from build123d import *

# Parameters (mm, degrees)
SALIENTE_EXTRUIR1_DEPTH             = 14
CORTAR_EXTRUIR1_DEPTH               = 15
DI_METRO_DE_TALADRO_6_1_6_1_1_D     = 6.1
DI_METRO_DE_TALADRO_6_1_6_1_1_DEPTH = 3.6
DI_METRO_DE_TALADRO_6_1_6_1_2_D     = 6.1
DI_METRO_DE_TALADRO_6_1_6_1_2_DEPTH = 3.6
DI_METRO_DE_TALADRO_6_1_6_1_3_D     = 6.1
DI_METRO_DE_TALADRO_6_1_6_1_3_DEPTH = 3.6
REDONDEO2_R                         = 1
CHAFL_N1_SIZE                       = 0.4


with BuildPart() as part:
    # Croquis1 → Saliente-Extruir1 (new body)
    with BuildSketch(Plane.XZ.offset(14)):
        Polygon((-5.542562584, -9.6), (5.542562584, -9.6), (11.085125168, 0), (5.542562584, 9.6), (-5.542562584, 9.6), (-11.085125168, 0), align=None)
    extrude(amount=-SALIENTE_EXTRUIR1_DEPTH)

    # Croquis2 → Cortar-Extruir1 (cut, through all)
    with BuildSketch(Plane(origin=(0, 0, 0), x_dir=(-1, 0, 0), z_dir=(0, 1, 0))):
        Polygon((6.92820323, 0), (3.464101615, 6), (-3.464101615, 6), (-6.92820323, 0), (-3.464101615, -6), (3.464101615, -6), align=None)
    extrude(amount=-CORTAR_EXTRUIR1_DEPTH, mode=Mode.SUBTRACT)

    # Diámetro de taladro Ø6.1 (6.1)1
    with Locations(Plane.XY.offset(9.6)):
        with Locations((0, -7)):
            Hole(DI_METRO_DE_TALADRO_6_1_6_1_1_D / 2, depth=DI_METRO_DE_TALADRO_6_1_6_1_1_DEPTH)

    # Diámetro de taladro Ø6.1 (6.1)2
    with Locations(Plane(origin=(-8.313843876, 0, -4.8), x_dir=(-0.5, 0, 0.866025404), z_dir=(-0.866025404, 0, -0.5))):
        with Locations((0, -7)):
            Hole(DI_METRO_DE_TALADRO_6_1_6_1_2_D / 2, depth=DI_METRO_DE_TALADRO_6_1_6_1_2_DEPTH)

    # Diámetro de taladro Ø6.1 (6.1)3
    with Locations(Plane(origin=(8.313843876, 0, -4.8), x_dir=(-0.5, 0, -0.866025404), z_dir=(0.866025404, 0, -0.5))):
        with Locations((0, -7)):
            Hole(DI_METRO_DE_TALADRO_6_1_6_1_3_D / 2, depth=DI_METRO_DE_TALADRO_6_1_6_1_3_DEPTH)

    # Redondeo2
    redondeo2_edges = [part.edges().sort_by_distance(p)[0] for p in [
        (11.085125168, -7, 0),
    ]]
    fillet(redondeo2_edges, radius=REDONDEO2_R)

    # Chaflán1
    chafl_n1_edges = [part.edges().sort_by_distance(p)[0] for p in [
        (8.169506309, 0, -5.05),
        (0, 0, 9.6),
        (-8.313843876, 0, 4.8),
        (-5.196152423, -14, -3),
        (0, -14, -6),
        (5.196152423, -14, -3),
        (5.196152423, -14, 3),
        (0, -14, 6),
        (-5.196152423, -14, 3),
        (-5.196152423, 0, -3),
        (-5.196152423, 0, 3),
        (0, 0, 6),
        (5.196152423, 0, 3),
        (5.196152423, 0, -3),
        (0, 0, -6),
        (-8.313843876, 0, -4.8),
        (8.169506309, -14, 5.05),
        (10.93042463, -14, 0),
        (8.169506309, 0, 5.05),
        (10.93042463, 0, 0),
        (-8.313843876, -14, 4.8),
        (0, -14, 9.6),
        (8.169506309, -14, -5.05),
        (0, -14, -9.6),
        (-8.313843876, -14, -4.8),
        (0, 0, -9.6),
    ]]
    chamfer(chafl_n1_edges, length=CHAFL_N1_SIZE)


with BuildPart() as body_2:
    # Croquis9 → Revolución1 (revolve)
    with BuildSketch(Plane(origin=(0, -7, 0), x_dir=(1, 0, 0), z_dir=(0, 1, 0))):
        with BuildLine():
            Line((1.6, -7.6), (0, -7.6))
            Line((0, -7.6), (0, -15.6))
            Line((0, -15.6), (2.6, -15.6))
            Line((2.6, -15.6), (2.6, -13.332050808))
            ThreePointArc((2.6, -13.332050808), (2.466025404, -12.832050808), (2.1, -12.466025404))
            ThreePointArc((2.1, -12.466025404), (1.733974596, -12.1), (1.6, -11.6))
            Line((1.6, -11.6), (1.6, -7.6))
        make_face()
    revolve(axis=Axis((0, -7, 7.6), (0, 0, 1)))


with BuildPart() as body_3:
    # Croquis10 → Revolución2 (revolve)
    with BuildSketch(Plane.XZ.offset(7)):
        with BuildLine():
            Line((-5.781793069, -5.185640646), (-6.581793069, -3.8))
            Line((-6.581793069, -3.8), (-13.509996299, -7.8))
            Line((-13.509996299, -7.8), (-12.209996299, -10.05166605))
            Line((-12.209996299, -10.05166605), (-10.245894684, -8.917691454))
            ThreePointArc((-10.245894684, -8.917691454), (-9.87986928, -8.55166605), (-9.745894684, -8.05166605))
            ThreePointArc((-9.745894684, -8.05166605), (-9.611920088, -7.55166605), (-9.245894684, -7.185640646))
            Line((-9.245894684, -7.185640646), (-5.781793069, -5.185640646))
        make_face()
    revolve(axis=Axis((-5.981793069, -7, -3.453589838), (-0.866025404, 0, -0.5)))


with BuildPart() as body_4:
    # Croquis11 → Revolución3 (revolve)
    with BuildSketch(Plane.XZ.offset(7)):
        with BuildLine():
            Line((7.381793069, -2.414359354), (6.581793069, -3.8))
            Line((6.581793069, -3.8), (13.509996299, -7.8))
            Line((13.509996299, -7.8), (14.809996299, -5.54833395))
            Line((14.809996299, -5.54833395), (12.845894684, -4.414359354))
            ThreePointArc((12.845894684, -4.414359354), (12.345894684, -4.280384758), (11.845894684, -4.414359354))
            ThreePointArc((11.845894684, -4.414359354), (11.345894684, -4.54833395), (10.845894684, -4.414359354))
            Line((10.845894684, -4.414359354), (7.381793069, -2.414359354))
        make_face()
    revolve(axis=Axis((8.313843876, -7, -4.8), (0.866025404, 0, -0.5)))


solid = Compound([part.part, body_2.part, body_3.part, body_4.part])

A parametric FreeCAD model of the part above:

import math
import FreeCAD as App
import Part
import Sketcher
Q = App.Units.Quantity


def edges_at(feature, points):
    """Names of the edges that pass closest to the given points."""
    edges = feature.Shape.Edges
    near = lambda p: min(range(len(edges)), key=lambda i: edges[i].distToShape(Part.Vertex(*p))[0])
    return sorted({f"Edge{near(p) + 1}" for p in points})

doc = App.newDocument("Part")
body = doc.addObject("PartDesign::Body", "Body")

# Sketch on XZ plane
sketch1 = body.newObject("Sketcher::SketchObject", "Sketch")
sketch1.AttachmentSupport = (doc.getObject("XZ_Plane"), [""])
sketch1.MapMode = "FlatFace"
sketch1.AttachmentOffset = App.Placement(App.Vector(0, 0, 14), App.Rotation())
sketch1.addGeometry(Part.LineSegment(App.Vector(-6, -10, 0), App.Vector(6, -10, 0)), False)
sketch1.addGeometry(Part.LineSegment(App.Vector(6, -10, 0), App.Vector(11, 0, 0)), False)
sketch1.addGeometry(Part.LineSegment(App.Vector(11, 0, 0), App.Vector(6, 10, 0)), False)
sketch1.addGeometry(Part.LineSegment(App.Vector(6, 10, 0), App.Vector(-6, 10, 0)), False)
sketch1.addGeometry(Part.LineSegment(App.Vector(-6, 10, 0), App.Vector(-11, 0, 0)), False)
sketch1.addGeometry(Part.LineSegment(App.Vector(-11, 0, 0), App.Vector(-6, -10, 0)), False)
sketch1.addConstraint(Sketcher.Constraint("Coincident", 0, 2, 1, 1))
sketch1.addConstraint(Sketcher.Constraint("Coincident", 1, 2, 2, 1))
sketch1.addConstraint(Sketcher.Constraint("Coincident", 2, 2, 3, 1))
sketch1.addConstraint(Sketcher.Constraint("Coincident", 3, 2, 4, 1))
sketch1.addConstraint(Sketcher.Constraint("Coincident", 4, 2, 5, 1))
sketch1.addConstraint(Sketcher.Constraint("Coincident", 5, 2, 0, 1))
sketch1.addConstraint(Sketcher.Constraint("Horizontal", 0))
sketch1.addConstraint(Sketcher.Constraint("Horizontal", 3))
sketch1.addConstraint(Sketcher.Constraint("Symmetric", 0, 2, 3, 2, -1, 1))
sketch1.addConstraint(Sketcher.Constraint("Symmetric", 1, 2, 4, 2, -1, 1))
sketch1.addConstraint(Sketcher.Constraint("PointOnObject", 1, 2, -1))
sketch1.addConstraint(Sketcher.Constraint("Parallel", 2, 5))
sketch1.addConstraint(Sketcher.Constraint("Vertical", 0, 2, 2, 2))
sketch1.addConstraint(Sketcher.Constraint("Angle", 1, Q("60 deg")))
sketch1.addConstraint(Sketcher.Constraint("DistanceY", 0, 2, -1, 1, 9.6))
sketch1.addConstraint(Sketcher.Constraint("DistanceX", 0, 1, 0, 2, 11.085125))
pad1 = body.newObject("PartDesign::Pad", "Pad")
pad1.Profile = sketch1
pad1.Length = 14
pad1.Reversed = True

# Sketch on XZ plane
sketch2 = body.newObject("Sketcher::SketchObject", "Sketch001")
sketch2.AttachmentSupport = (doc.getObject("XZ_Plane"), [""])
sketch2.MapMode = "FlatFace"
sketch2.addGeometry(Part.LineSegment(App.Vector(-7, 0, 0), App.Vector(-3, 6, 0)), False)
sketch2.addGeometry(Part.LineSegment(App.Vector(-3, 6, 0), App.Vector(3, 6, 0)), False)
sketch2.addGeometry(Part.LineSegment(App.Vector(3, 6, 0), App.Vector(7, 0, 0)), False)
sketch2.addGeometry(Part.LineSegment(App.Vector(7, 0, 0), App.Vector(3, -6, 0)), False)
sketch2.addGeometry(Part.LineSegment(App.Vector(3, -6, 0), App.Vector(-3, -6, 0)), False)
sketch2.addGeometry(Part.LineSegment(App.Vector(-3, -6, 0), App.Vector(-7, 0, 0)), False)
sketch2.addConstraint(Sketcher.Constraint("Coincident", 0, 2, 1, 1))
sketch2.addConstraint(Sketcher.Constraint("Coincident", 1, 2, 2, 1))
sketch2.addConstraint(Sketcher.Constraint("Coincident", 2, 2, 3, 1))
sketch2.addConstraint(Sketcher.Constraint("Coincident", 3, 2, 4, 1))
sketch2.addConstraint(Sketcher.Constraint("Coincident", 4, 2, 5, 1))
sketch2.addConstraint(Sketcher.Constraint("Coincident", 5, 2, 0, 1))
sketch2.addConstraint(Sketcher.Constraint("Horizontal", 1))
sketch2.addConstraint(Sketcher.Constraint("Horizontal", 4))
sketch2.addConstraint(Sketcher.Constraint("Symmetric", 0, 2, 3, 2, -1, 1))
sketch2.addConstraint(Sketcher.Constraint("Symmetric", 2, 2, 5, 2, -1, 1))
sketch2.addConstraint(Sketcher.Constraint("PointOnObject", 2, 2, -1))
sketch2.addConstraint(Sketcher.Constraint("Parallel", 2, 5))
sketch2.addConstraint(Sketcher.Constraint("Vertical", 1, 2, 3, 2))
sketch2.addConstraint(Sketcher.Constraint("Angle", 0, Q("60 deg")))
sketch2.addConstraint(Sketcher.Constraint("DistanceY", -1, 1, 0, 2, 6.0))
sketch2.addConstraint(Sketcher.Constraint("DistanceX", 0, 2, -1, 1, 3.464102))
pocket1 = body.newObject("PartDesign::Pocket", "Pocket")
pocket1.Profile = sketch2
pocket1.Type = "ThroughAll"
pocket1.Reversed = True

# Sketch on XY plane
sketch3 = body.newObject("Sketcher::SketchObject", "Sketch002")
sketch3.AttachmentSupport = (doc.getObject("XY_Plane"), [""])
sketch3.MapMode = "FlatFace"
sketch3.AttachmentOffset = App.Placement(App.Vector(0, 0, 9.6), App.Rotation())
sketch3.addGeometry(Part.Circle(App.Vector(0, -7, 0), App.Vector(0, 0, 1), 3), False)
sketch3.addConstraint(Sketcher.Constraint("PointOnObject", 0, 3, -2))
sketch3.addConstraint(Sketcher.Constraint("Diameter", 0, 6.1))
sketch3.addConstraint(Sketcher.Constraint("DistanceY", 0, 3, -1, 1, 7.0))
doc.recompute()
hole = body.newObject("PartDesign::Hole", "Hole")
hole.Profile = sketch3
hole.ThreadType = "None"
hole.Diameter = 6.1
hole.DepthType = "Dimension"
hole.Depth = 3.6
hole.DrillPoint = "Flat"

# Sketch on an angled plane
sketch4 = body.newObject("Sketcher::SketchObject", "Sketch003")
sketch4.Placement = App.Placement(App.Vector(-8.313844, 0, -4.8), App.Rotation(App.Vector(-0.5, 0, 0.866025404), App.Vector(0, 1, 0), App.Vector(-0.866025404, 0, -0.5), "ZXY"))
sketch4.addGeometry(Part.Circle(App.Vector(0, -7, 0), App.Vector(0, 0, 1), 3), False)
sketch4.addConstraint(Sketcher.Constraint("PointOnObject", 0, 3, -2))
sketch4.addConstraint(Sketcher.Constraint("Diameter", 0, 6.1))
sketch4.addConstraint(Sketcher.Constraint("DistanceY", 0, 3, -1, 1, 7.0))
doc.recompute()
hole2 = body.newObject("PartDesign::Hole", "Hole001")
hole2.Profile = sketch4
hole2.ThreadType = "None"
hole2.Diameter = 6.1
hole2.DepthType = "Dimension"
hole2.Depth = 3.6
hole2.DrillPoint = "Flat"

# Sketch on an angled plane
sketch5 = body.newObject("Sketcher::SketchObject", "Sketch004")
sketch5.Placement = App.Placement(App.Vector(8.313844, 0, -4.8), App.Rotation(App.Vector(-0.5, 0, -0.866025404), App.Vector(0, 1, 0), App.Vector(0.866025404, 0, -0.5), "ZXY"))
sketch5.addGeometry(Part.Circle(App.Vector(0, -7, 0), App.Vector(0, 0, 1), 3), False)
sketch5.addConstraint(Sketcher.Constraint("PointOnObject", 0, 3, -2))
sketch5.addConstraint(Sketcher.Constraint("Diameter", 0, 6.1))
sketch5.addConstraint(Sketcher.Constraint("DistanceY", 0, 3, -1, 1, 7.0))
doc.recompute()
hole3 = body.newObject("PartDesign::Hole", "Hole002")
hole3.Profile = sketch5
hole3.ThreadType = "None"
hole3.Diameter = 6.1
hole3.DepthType = "Dimension"
hole3.Depth = 3.6
hole3.DrillPoint = "Flat"
doc.recompute()

fillet = body.newObject("PartDesign::Fillet", "Fillet")
fillet.Base = (hole3, edges_at(hole3, [(11.085, -7, 0)]))
fillet.Radius = 1
doc.recompute()

chamfer = body.newObject("PartDesign::Chamfer", "Chamfer")
chamfer.Base = (fillet, edges_at(fillet, [
    (8.17, 0, -5.05),
    (0, 0, 9.6),
    (-8.314, 0, 4.8),
    (-5.196, -14, -3),
    (0, -14, -6),
    (5.196, -14, -3),
    (5.196, -14, 3),
    (0, -14, 6),
    (-5.196, -14, 3),
    (-5.196, 0, -3),
    (-5.196, 0, 3),
    (0, 0, 6),
    (5.196, 0, 3),
    (5.196, 0, -3),
    (0, 0, -6),
    (-8.314, 0, -4.8),
    (8.17, -14, 5.05),
    (10.93, -14, 0),
    (8.17, 0, 5.05),
    (10.93, 0, 0),
    (-8.314, -14, 4.8),
    (0, -14, 9.6),
    (8.17, -14, -5.05),
    (0, -14, -9.6),
    (-8.314, -14, -4.8),
    (0, 0, -9.6),
]))
chamfer.Size = 0.4
body2 = doc.addObject("PartDesign::Body", "Body001")

# Sketch on XZ plane
sketch6 = body2.newObject("Sketcher::SketchObject", "Sketch005")
sketch6.AttachmentSupport = (doc.getObject("XZ_Plane001"), [""])
sketch6.MapMode = "FlatFace"
sketch6.AttachmentOffset = App.Placement(App.Vector(0, 0, 7), App.Rotation())
sketch6.addGeometry(Part.LineSegment(App.Vector(1.6, 7.6, 0), App.Vector(0, 7.6, 0)), False)
sketch6.addGeometry(Part.LineSegment(App.Vector(0, 7.6, 0), App.Vector(0, 15.6, 0)), False)
sketch6.addGeometry(Part.LineSegment(App.Vector(0, 15.6, 0), App.Vector(2.6, 15.6, 0)), False)
sketch6.addGeometry(Part.LineSegment(App.Vector(2.6, 15.6, 0), App.Vector(2.6, 13.3, 0)), False)
sketch6.addGeometry(Part.ArcOfCircle(Part.Circle(App.Vector(1.6, 13.3, 0), App.Vector(0, 0, 1), 1), math.radians(-60), math.radians(0)), False)
sketch6.addGeometry(Part.ArcOfCircle(Part.Circle(App.Vector(2.6, 11.6, 0), App.Vector(0, 0, 1), 1), math.radians(120), math.radians(180)), False)
sketch6.addGeometry(Part.LineSegment(App.Vector(1.6, 11.6, 0), App.Vector(1.6, 7.6, 0)), False)
sketch6.addConstraint(Sketcher.Constraint("Coincident", 0, 2, 1, 1))
sketch6.addConstraint(Sketcher.Constraint("Coincident", 1, 2, 2, 1))
sketch6.addConstraint(Sketcher.Constraint("Coincident", 2, 2, 3, 1))
sketch6.addConstraint(Sketcher.Constraint("Tangent", 3, 2, 4, 2))
sketch6.addConstraint(Sketcher.Constraint("Tangent", 4, 1, 5, 1))
sketch6.addConstraint(Sketcher.Constraint("Tangent", 5, 2, 6, 1))
sketch6.addConstraint(Sketcher.Constraint("Coincident", 6, 2, 0, 1))
sketch6.addConstraint(Sketcher.Constraint("Horizontal", 0))
sketch6.addConstraint(Sketcher.Constraint("Vertical", 1))
sketch6.addConstraint(Sketcher.Constraint("Horizontal", 2))
sketch6.addConstraint(Sketcher.Constraint("Vertical", 3))
sketch6.addConstraint(Sketcher.Constraint("Vertical", 6))
sketch6.addConstraint(Sketcher.Constraint("Equal", 4, 5))
sketch6.addConstraint(Sketcher.Constraint("PointOnObject", 0, 2, -2))
sketch6.addConstraint(Sketcher.Constraint("Vertical", 5, 3, 2, 2))
sketch6.addConstraint(Sketcher.Constraint("Radius", 4, 1.0))
sketch6.addConstraint(Sketcher.Constraint("DistanceY", 1, 1, 1, 2, 8.0))
sketch6.addConstraint(Sketcher.Constraint("DistanceY", 6, 2, 6, 1, 4.0))
sketch6.addConstraint(Sketcher.Constraint("DistanceX", 0, 2, 0, 1, 1.6))
sketch6.addConstraint(Sketcher.Constraint("DistanceY", -1, 1, 5, 3, 11.6))
revolution = body2.newObject("PartDesign::Revolution", "Revolution")
revolution.Profile = sketch6
revolution.ReferenceAxis = (sketch6, ["V_Axis"])
revolution.Angle = 360
body3 = doc.addObject("PartDesign::Body", "Body002")

# Sketch on XZ plane
sketch7 = body3.newObject("Sketcher::SketchObject", "Sketch006")
sketch7.AttachmentSupport = (doc.getObject("XZ_Plane002"), [""])
sketch7.MapMode = "FlatFace"
sketch7.AttachmentOffset = App.Placement(App.Vector(0, 0, 7), App.Rotation())
sketch7.addGeometry(Part.LineSegment(App.Vector(-5.8, -5.2, 0), App.Vector(-6.6, -3.8, 0)), False)
sketch7.addGeometry(Part.LineSegment(App.Vector(-6.6, -3.8, 0), App.Vector(-13.5, -7.8, 0)), False)
sketch7.addGeometry(Part.LineSegment(App.Vector(-13.5, -7.8, 0), App.Vector(-12.2, -10.1, 0)), False)
sketch7.addGeometry(Part.LineSegment(App.Vector(-12.2, -10.1, 0), App.Vector(-10.2, -8.9, 0)), False)
sketch7.addGeometry(Part.ArcOfCircle(Part.Circle(App.Vector(-10.7, -8.1, 0), App.Vector(0, 0, 1), 1), math.radians(-60), math.radians(0)), False)
sketch7.addGeometry(Part.ArcOfCircle(Part.Circle(App.Vector(-8.7, -8.1, 0), App.Vector(0, 0, 1), 1), math.radians(120), math.radians(180)), False)
sketch7.addGeometry(Part.LineSegment(App.Vector(-9.2, -7.2, 0), App.Vector(-5.8, -5.2, 0)), False)
sketch7.addGeometry(Part.LineSegment(App.Vector(-6.6, -3.8, 0), App.Vector(-13.5, -7.8, 0)), True)  # axis
sketch7.addConstraint(Sketcher.Constraint("Coincident", 0, 2, 1, 1))
sketch7.addConstraint(Sketcher.Constraint("Coincident", 1, 2, 2, 1))
sketch7.addConstraint(Sketcher.Constraint("Coincident", 2, 2, 3, 1))
sketch7.addConstraint(Sketcher.Constraint("Tangent", 3, 2, 4, 1))
sketch7.addConstraint(Sketcher.Constraint("Tangent", 4, 2, 5, 2))
sketch7.addConstraint(Sketcher.Constraint("Tangent", 5, 1, 6, 1))
sketch7.addConstraint(Sketcher.Constraint("Coincident", 6, 2, 0, 1))
sketch7.addConstraint(Sketcher.Constraint("Coincident", 7, 1, 0, 2))
sketch7.addConstraint(Sketcher.Constraint("Coincident", 7, 2, 1, 2))
sketch7.addConstraint(Sketcher.Constraint("Equal", 4, 5))
sketch7.addConstraint(Sketcher.Constraint("Perpendicular", 0, 1))
sketch7.addConstraint(Sketcher.Constraint("Perpendicular", 1, 2))
sketch7.addConstraint(Sketcher.Constraint("Perpendicular", 2, 3))
sketch7.addConstraint(Sketcher.Constraint("Parallel", 3, 6))
sketch7.addConstraint(Sketcher.Constraint("Horizontal", 4, 3, 5, 3))
sketch7.addConstraint(Sketcher.Constraint("Radius", 4, 1.0))
sketch7.addConstraint(Sketcher.Constraint("Angle", 0, Q("120 deg")))
sketch7.addConstraint(Sketcher.Constraint("Distance", 1, 8.0))
sketch7.addConstraint(Sketcher.Constraint("Distance", 6, 4.0))
sketch7.addConstraint(Sketcher.Constraint("Distance", 0, 1.6))
sketch7.addConstraint(Sketcher.Constraint("DistanceY", 0, 2, -1, 1, 3.8))
sketch7.addConstraint(Sketcher.Constraint("DistanceX", 4, 3, -1, 1, 10.745895))
revolution2 = body3.newObject("PartDesign::Revolution", "Revolution001")
revolution2.Profile = sketch7
revolution2.ReferenceAxis = (sketch7, ["Axis0"])
revolution2.Angle = 360
body4 = doc.addObject("PartDesign::Body", "Body003")

# Sketch on XZ plane
sketch8 = body4.newObject("Sketcher::SketchObject", "Sketch007")
sketch8.AttachmentSupport = (doc.getObject("XZ_Plane003"), [""])
sketch8.MapMode = "FlatFace"
sketch8.AttachmentOffset = App.Placement(App.Vector(0, 0, 7), App.Rotation())
sketch8.addGeometry(Part.LineSegment(App.Vector(7.4, -2.4, 0), App.Vector(6.6, -3.8, 0)), False)
sketch8.addGeometry(Part.LineSegment(App.Vector(6.6, -3.8, 0), App.Vector(13.5, -7.8, 0)), False)
sketch8.addGeometry(Part.LineSegment(App.Vector(13.5, -7.8, 0), App.Vector(14.8, -5.5, 0)), False)
sketch8.addGeometry(Part.LineSegment(App.Vector(14.8, -5.5, 0), App.Vector(12.8, -4.4, 0)), False)
sketch8.addGeometry(Part.ArcOfCircle(Part.Circle(App.Vector(12.3, -5.3, 0), App.Vector(0, 0, 1), 1), math.radians(60), math.radians(120)), False)
sketch8.addGeometry(Part.ArcOfCircle(Part.Circle(App.Vector(11.3, -3.5, 0), App.Vector(0, 0, 1), 1), math.radians(-120), math.radians(-60)), False)
sketch8.addGeometry(Part.LineSegment(App.Vector(10.8, -4.4, 0), App.Vector(7.4, -2.4, 0)), False)
sketch8.addGeometry(Part.LineSegment(App.Vector(6.6, -3.8, 0), App.Vector(13.5, -7.8, 0)), True)  # axis
sketch8.addConstraint(Sketcher.Constraint("Coincident", 0, 2, 1, 1))
sketch8.addConstraint(Sketcher.Constraint("Coincident", 1, 2, 2, 1))
sketch8.addConstraint(Sketcher.Constraint("Coincident", 2, 2, 3, 1))
sketch8.addConstraint(Sketcher.Constraint("Tangent", 3, 2, 4, 1))
sketch8.addConstraint(Sketcher.Constraint("Tangent", 4, 2, 5, 2))
sketch8.addConstraint(Sketcher.Constraint("Tangent", 5, 1, 6, 1))
sketch8.addConstraint(Sketcher.Constraint("Coincident", 6, 2, 0, 1))
sketch8.addConstraint(Sketcher.Constraint("Coincident", 7, 1, 0, 2))
sketch8.addConstraint(Sketcher.Constraint("Coincident", 7, 2, 1, 2))
sketch8.addConstraint(Sketcher.Constraint("Equal", 4, 5))
sketch8.addConstraint(Sketcher.Constraint("Perpendicular", 0, 1))
sketch8.addConstraint(Sketcher.Constraint("Perpendicular", 1, 2))
sketch8.addConstraint(Sketcher.Constraint("Perpendicular", 2, 3))
sketch8.addConstraint(Sketcher.Constraint("Parallel", 3, 6))
sketch8.addConstraint(Sketcher.Constraint("Horizontal", 3, 2, 4, 2))
sketch8.addConstraint(Sketcher.Constraint("Radius", 4, 1.0))
sketch8.addConstraint(Sketcher.Constraint("Angle", 0, Q("-120 deg")))
sketch8.addConstraint(Sketcher.Constraint("Distance", 1, 8.0))
sketch8.addConstraint(Sketcher.Constraint("Distance", 6, 4.0))
sketch8.addConstraint(Sketcher.Constraint("Distance", 0, 1.6))
sketch8.addConstraint(Sketcher.Constraint("DistanceY", 0, 2, -1, 1, 3.8))
sketch8.addConstraint(Sketcher.Constraint("DistanceX", -1, 1, 4, 3, 12.345895))
revolution3 = body4.newObject("PartDesign::Revolution", "Revolution002")
revolution3.Profile = sketch8
revolution3.ReferenceAxis = (sketch8, ["Axis0"])
revolution3.Angle = 360

doc.recompute()
